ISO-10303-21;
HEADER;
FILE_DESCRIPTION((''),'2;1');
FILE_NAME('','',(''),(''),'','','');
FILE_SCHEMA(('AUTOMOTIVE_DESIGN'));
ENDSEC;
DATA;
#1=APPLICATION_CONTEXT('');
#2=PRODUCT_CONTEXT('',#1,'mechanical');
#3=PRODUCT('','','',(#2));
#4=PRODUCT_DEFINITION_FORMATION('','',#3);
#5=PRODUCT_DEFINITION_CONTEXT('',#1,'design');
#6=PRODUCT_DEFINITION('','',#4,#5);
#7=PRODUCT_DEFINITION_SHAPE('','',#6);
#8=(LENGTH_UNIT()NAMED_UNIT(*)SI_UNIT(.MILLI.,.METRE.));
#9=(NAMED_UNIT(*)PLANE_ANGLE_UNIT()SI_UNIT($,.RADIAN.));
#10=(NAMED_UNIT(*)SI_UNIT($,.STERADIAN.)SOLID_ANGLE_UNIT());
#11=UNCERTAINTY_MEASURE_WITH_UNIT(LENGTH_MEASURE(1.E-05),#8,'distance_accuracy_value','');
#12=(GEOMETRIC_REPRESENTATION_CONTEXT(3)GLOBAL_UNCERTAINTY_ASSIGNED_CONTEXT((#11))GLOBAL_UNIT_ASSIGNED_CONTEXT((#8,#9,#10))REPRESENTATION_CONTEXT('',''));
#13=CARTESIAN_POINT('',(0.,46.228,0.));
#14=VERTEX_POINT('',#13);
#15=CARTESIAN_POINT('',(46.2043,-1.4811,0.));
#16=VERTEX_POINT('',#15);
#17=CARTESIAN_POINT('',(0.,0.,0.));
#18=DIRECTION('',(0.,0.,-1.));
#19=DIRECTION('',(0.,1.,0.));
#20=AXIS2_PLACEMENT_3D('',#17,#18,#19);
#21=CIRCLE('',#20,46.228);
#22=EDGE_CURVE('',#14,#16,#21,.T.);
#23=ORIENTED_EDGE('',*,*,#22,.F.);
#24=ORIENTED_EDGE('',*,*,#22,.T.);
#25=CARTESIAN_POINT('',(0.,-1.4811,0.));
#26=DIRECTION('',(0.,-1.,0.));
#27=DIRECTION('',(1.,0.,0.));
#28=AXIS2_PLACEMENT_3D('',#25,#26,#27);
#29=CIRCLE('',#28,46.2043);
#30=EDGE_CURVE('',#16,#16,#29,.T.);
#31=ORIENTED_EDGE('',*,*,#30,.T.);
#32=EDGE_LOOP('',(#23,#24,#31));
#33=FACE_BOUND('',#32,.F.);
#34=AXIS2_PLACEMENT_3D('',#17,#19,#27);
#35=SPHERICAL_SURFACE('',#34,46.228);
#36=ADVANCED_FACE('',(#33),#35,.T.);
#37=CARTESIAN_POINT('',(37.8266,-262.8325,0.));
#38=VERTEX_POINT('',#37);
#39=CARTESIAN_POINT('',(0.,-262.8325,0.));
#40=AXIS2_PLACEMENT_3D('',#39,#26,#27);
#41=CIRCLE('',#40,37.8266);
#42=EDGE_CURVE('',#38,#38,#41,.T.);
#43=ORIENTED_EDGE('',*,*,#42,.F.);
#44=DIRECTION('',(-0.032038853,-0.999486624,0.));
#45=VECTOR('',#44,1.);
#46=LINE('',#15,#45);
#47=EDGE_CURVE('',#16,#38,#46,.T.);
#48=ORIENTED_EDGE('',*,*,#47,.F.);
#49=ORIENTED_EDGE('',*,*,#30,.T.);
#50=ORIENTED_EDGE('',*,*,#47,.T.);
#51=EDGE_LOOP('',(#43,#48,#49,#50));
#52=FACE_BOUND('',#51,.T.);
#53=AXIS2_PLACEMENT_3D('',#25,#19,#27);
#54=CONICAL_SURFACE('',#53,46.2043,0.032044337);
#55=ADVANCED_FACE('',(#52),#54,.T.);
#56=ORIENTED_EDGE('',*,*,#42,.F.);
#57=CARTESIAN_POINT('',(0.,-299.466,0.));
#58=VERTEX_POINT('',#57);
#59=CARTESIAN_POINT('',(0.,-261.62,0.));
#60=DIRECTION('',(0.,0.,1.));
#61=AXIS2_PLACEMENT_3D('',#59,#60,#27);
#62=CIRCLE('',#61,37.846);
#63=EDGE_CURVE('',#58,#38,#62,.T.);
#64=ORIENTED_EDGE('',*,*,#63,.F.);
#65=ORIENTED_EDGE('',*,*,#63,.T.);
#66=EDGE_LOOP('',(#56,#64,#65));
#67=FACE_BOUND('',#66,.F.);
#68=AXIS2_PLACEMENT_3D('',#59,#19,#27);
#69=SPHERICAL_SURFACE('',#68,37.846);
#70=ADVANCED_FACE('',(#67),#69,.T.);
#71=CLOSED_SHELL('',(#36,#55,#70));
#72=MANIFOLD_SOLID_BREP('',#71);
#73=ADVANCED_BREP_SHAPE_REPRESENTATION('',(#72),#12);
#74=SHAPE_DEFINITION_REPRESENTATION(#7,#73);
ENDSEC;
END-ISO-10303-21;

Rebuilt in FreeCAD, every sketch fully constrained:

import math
import FreeCAD as App
import Part
import Sketcher
from FreeCAD import Vector
Q = App.Units.Quantity

doc = App.newDocument("Part")
body = doc.addObject("PartDesign::Body", "Body")

# Sketch on XY plane
sketch1 = body.newObject("Sketcher::SketchObject", "Sketch")
sketch1.AttachmentSupport = (doc.getObject("XY_Plane"), [""])
sketch1.MapMode = "FlatFace"
sketch1.addGeometry(Part.ArcOfCircle(Part.Circle(Vector(0, 0, 0), Vector(0, 0, 1), 46), math.radians(-2), math.radians(90)), False)
sketch1.addGeometry(Part.LineSegment(Vector(0, 46, 0), Vector(0, -299, 0)), False)
sketch1.addGeometry(Part.ArcOfCircle(Part.Circle(Vector(0, -262, 0), Vector(0, 0, 1), 38), math.radians(-90), math.radians(-2)), False)
sketch1.addGeometry(Part.LineSegment(Vector(38, -263, 0), Vector(46, -1, 0)), False)
sketch1.addConstraint(Sketcher.Constraint("Coincident", 0, 2, 1, 1))
sketch1.addConstraint(Sketcher.Constraint("Coincident", 1, 2, 2, 1))
sketch1.addConstraint(Sketcher.Constraint("Tangent", 2, 2, 3, 1))
sketch1.addConstraint(Sketcher.Constraint("Tangent", 3, 2, 0, 1))
sketch1.addConstraint(Sketcher.Constraint("Vertical", 1))
sketch1.addConstraint(Sketcher.Constraint("Coincident", 0, 3, -1, 1))
sketch1.addConstraint(Sketcher.Constraint("PointOnObject", 2, 3, -2))
sketch1.addConstraint(Sketcher.Constraint("PointOnObject", 0, 2, -2))
sketch1.addConstraint(Sketcher.Constraint("Radius", 0, Q("1.82 in")))
sketch1.addConstraint(Sketcher.Constraint("Radius", 2, Q("1.49 in")))
sketch1.addConstraint(Sketcher.Constraint("DistanceY", 2, 3, -1, 1, Q("10.3 in")))
revolution = body.newObject("PartDesign::Revolution", "Revolution")
revolution.Profile = sketch1
revolution.ReferenceAxis = (sketch1, ["V_Axis"])
revolution.Angle = 360

doc.recompute()
